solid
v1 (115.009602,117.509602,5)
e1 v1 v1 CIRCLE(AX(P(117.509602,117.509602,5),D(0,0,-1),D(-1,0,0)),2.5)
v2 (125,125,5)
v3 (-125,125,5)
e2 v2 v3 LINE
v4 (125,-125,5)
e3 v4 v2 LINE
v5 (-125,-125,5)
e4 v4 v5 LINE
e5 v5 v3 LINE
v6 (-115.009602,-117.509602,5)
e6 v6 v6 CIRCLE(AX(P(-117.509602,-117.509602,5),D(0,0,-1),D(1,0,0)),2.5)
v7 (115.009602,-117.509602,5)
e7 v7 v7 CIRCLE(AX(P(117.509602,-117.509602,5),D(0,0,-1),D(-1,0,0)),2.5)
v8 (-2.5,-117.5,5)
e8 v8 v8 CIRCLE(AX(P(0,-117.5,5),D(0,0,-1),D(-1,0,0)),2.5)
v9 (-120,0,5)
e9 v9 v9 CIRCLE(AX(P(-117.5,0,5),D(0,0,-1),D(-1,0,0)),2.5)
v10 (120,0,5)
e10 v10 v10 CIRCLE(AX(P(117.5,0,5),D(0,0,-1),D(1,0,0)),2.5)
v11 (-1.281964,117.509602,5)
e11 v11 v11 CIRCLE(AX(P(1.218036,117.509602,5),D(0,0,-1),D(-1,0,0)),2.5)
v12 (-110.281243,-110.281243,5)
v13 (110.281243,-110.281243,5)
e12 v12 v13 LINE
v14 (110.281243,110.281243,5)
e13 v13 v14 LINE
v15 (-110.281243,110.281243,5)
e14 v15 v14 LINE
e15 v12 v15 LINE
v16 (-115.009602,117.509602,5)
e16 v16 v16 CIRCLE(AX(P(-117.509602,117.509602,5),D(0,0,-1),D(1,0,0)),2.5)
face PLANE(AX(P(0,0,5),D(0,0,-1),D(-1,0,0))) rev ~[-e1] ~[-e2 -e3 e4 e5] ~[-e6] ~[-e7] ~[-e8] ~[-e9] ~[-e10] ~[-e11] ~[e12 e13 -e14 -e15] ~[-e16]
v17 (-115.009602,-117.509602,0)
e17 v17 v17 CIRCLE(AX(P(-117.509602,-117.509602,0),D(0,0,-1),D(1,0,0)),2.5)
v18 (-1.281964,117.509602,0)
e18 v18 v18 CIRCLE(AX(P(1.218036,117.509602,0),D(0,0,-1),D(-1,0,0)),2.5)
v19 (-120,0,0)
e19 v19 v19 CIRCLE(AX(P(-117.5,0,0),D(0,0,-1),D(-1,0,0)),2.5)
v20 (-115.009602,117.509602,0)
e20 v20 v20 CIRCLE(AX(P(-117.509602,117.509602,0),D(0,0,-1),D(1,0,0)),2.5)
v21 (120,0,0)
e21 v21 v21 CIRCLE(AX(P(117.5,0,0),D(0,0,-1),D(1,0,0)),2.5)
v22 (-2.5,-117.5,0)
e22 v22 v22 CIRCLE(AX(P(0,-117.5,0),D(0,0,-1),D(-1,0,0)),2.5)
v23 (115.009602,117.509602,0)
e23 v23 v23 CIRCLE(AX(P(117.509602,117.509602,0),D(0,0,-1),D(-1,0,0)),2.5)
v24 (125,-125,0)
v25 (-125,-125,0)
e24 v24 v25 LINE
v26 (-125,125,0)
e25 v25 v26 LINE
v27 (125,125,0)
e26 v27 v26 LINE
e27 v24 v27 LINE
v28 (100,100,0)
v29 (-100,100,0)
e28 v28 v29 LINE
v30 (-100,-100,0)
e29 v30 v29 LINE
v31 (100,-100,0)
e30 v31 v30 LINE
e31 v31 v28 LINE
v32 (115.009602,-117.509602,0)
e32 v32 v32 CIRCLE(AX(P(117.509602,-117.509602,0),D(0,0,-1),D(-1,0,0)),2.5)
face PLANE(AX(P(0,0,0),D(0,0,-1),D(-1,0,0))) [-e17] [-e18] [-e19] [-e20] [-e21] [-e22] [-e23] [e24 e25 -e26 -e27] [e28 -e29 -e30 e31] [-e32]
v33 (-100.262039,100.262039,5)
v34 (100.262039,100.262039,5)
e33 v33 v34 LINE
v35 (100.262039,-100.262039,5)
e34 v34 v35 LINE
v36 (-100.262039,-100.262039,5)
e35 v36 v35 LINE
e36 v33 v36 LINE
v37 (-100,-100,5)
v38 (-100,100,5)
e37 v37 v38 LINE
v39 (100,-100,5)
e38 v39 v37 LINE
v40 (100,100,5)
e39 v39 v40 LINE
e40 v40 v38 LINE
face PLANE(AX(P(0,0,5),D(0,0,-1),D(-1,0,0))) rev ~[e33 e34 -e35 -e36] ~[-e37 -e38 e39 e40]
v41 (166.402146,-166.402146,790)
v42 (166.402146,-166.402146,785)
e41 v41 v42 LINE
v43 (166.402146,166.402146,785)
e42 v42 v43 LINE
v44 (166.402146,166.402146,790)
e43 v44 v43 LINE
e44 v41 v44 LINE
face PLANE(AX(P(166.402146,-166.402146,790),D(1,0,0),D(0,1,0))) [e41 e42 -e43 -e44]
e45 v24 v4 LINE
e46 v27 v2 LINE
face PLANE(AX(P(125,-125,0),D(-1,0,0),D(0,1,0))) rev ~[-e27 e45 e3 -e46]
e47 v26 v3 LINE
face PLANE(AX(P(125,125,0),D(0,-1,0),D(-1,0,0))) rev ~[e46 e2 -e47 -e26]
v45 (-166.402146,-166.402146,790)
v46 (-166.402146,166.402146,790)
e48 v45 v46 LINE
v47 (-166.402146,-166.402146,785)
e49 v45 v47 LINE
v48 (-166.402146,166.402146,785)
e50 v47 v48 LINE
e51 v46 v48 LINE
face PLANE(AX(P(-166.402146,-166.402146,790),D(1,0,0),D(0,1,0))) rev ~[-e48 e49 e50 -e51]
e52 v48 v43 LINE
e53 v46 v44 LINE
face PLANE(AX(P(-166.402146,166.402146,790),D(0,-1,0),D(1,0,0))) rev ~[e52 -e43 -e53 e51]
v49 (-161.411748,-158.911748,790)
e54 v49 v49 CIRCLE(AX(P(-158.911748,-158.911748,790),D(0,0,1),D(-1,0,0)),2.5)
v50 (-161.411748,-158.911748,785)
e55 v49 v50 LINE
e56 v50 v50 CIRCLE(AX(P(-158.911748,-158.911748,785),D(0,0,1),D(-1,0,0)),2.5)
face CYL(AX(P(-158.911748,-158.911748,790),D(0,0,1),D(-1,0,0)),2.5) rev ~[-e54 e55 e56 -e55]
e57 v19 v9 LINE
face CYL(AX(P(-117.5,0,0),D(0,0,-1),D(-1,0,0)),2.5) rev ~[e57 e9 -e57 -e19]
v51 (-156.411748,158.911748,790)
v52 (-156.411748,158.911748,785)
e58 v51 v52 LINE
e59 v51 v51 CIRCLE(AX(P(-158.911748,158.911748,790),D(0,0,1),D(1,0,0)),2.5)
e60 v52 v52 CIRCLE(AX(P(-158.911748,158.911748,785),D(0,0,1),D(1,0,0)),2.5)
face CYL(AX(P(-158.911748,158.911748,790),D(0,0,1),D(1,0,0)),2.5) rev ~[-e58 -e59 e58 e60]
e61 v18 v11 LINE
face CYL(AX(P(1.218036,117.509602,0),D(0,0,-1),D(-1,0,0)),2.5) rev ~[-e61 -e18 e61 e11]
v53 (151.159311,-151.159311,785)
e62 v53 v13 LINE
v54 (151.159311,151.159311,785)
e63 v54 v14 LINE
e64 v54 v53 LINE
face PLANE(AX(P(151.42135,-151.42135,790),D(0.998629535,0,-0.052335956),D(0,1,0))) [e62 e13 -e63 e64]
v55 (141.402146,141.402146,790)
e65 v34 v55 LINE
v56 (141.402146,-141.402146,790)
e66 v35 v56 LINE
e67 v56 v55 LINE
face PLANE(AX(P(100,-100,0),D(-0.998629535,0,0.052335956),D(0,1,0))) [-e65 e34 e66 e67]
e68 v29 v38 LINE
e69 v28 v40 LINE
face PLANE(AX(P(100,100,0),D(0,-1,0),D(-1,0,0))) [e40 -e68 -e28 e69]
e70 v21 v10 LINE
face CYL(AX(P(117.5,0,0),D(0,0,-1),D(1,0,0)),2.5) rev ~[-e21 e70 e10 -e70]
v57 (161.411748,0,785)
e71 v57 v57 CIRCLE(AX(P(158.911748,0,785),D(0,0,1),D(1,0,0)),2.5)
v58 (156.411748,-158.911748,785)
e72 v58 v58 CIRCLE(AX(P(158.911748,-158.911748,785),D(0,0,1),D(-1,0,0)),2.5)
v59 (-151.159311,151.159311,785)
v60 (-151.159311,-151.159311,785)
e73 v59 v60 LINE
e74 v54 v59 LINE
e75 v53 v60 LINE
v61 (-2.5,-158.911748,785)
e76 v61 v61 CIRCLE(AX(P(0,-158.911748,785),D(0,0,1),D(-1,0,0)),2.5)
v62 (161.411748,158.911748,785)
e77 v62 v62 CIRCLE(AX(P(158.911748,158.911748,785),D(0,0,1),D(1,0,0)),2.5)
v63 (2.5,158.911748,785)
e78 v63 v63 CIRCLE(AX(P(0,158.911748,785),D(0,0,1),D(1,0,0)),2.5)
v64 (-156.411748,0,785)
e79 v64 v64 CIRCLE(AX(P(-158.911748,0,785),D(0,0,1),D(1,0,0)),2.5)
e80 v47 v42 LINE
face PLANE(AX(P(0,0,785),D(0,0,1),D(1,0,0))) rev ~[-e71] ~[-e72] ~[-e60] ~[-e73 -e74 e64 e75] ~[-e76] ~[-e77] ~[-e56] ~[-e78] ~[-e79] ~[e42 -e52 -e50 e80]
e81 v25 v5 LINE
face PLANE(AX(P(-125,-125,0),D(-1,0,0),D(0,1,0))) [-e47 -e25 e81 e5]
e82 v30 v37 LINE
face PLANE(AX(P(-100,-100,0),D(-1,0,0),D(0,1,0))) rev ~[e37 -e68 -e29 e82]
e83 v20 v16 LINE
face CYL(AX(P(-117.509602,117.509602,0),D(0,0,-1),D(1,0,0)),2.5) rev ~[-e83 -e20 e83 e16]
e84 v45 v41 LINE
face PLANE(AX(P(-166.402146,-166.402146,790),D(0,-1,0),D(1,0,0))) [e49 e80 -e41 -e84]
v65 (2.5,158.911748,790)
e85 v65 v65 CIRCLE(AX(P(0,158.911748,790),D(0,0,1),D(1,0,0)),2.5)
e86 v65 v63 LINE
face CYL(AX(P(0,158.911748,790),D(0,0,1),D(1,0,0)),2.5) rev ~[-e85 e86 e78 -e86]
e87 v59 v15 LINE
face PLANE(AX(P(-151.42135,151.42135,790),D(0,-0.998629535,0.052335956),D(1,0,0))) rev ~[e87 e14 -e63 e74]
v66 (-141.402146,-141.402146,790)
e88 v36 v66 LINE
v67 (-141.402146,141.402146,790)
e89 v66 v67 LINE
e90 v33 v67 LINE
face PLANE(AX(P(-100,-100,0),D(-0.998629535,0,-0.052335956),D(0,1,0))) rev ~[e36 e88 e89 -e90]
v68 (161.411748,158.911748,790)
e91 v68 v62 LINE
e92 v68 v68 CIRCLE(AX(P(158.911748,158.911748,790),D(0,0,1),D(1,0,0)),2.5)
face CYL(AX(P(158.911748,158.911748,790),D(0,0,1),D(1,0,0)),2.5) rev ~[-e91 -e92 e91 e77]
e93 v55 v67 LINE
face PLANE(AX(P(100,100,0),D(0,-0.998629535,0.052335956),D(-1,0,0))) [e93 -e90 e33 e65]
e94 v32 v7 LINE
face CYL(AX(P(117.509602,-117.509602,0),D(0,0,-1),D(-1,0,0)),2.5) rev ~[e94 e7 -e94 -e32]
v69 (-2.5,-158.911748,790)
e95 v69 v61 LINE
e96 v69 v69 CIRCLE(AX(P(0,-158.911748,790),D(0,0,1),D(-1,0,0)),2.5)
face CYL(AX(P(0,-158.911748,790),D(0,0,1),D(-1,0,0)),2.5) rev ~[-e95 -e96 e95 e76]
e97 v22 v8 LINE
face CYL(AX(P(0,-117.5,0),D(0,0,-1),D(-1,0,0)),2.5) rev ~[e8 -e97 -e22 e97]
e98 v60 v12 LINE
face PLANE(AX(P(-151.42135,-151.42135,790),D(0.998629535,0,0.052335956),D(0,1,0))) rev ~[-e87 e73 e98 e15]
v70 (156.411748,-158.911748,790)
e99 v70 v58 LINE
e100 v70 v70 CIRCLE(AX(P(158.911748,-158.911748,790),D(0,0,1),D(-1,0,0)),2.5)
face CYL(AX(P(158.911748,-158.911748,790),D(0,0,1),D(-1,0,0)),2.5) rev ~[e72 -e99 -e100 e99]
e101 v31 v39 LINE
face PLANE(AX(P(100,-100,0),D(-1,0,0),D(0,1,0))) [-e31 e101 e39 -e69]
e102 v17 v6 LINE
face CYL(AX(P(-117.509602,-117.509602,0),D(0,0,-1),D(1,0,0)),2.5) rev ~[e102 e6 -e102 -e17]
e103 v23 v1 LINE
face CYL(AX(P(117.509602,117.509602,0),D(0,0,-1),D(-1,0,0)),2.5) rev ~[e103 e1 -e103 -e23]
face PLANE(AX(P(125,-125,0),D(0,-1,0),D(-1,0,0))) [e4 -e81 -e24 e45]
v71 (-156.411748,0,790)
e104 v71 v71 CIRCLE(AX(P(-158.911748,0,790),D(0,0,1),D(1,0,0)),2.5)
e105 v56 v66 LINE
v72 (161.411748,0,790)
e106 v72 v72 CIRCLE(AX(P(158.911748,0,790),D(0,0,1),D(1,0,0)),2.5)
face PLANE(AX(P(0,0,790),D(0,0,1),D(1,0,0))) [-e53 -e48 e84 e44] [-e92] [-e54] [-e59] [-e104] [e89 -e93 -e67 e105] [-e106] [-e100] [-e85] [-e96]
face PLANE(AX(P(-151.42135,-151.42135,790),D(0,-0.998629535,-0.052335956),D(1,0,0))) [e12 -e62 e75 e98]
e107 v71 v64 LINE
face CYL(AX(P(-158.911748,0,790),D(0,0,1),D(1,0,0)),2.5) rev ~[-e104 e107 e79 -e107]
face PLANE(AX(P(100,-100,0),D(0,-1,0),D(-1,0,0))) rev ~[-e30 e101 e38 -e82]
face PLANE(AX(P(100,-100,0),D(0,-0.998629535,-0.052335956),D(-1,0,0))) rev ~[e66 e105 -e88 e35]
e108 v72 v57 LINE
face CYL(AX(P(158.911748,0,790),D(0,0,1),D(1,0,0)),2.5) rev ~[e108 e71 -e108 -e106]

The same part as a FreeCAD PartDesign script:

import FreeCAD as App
import Part
import Sketcher
from FreeCAD import Vector


def faces_at(feature, points):
    """Names of the faces that lie closest to the given points."""
    faces = feature.Shape.Faces
    near = lambda p: min(range(len(faces)), key=lambda i: faces[i].distToShape(Part.Vertex(*p))[0])
    return sorted({f"Face{near(p) + 1}" for p in points})

doc = App.newDocument("Part")
body = doc.addObject("PartDesign::Body", "Body")

sketch1 = body.newObject("Sketcher::SketchObject", "Sketch")
sketch1.AttachmentSupport = (doc.getObject("XY_Plane"), [""])
sketch1.MapMode = "FlatFace"
sketch1.AttachmentOffset = App.Placement(Vector(0, 0, 790), App.Rotation())
sketch1.addGeometry([
    Part.LineSegment(Vector(-151.42135, 151.42135, 0), Vector(-151.42135, -151.42135, 0)),
    Part.LineSegment(Vector(-151.42135, -151.42135, 0), Vector(151.42135, -151.42135, 0)),
    Part.LineSegment(Vector(151.42135, -151.42135, 0), Vector(151.42135, 151.42135, 0)),
    Part.LineSegment(Vector(151.42135, 151.42135, 0), Vector(-151.42135, 151.42135, 0)),
], False)
sketch1.addConstraint([
    Sketcher.Constraint("Coincident", 0, 2, 1, 1),
    Sketcher.Constraint("Coincident", 1, 2, 2, 1),
    Sketcher.Constraint("Coincident", 2, 2, 3, 1),
    Sketcher.Constraint("Coincident", 3, 2, 0, 1),
    Sketcher.Constraint("Vertical", 0),
    Sketcher.Constraint("Horizontal", 1),
    Sketcher.Constraint("Vertical", 2),
    Sketcher.Constraint("Horizontal", 3),
    Sketcher.Constraint("Symmetric", 0, 2, 2, 2, -1, 1),
    Sketcher.Constraint("Equal", 3, 0),
    Sketcher.Constraint("DistanceX", 1, 1, 1, 2, 302.8427),
])
pad1 = body.newObject("PartDesign::Pad", "Pad")
pad1.Profile = sketch1
pad1.Length = 790
pad1.Reversed = True
doc.recompute()

datumplane = body.newObject("PartDesign::Plane", "DatumPlane")
datumplane.AttachmentSupport = (doc.getObject("XY_Plane"), [""])
datumplane.MapMode = "FlatFace"
datumplane.AttachmentOffset = App.Placement(Vector(0, 0, 790), App.Rotation())
draft = body.newObject("PartDesign::Draft", "Draft")
draft.Base = (pad1, faces_at(pad1, [
    (0, 151.421, 395),
    (-151.421, 0, 395),
    (0, -151.421, 395),
    (151.421, 0, 395),
]))
draft.NeutralPlane = (datumplane, [""])
draft.Angle = 3
draft.Reversed = True
body2 = doc.addObject("PartDesign::Body", "Body001")

sketch2 = body2.newObject("Sketcher::SketchObject", "Sketch001")
sketch2.AttachmentSupport = (doc.getObject("XY_Plane001"), [""])
sketch2.MapMode = "FlatFace"
sketch2.addGeometry([
    Part.LineSegment(Vector(100, 100, 0), Vector(100, -100, 0)),
    Part.LineSegment(Vector(100, -100, 0), Vector(-100, -100, 0)),
    Part.LineSegment(Vector(-100, -100, 0), Vector(-100, 100, 0)),
    Part.LineSegment(Vector(-100, 100, 0), Vector(100, 100, 0)),
], False)
sketch2.addConstraint([
    Sketcher.Constraint("Coincident", 0, 2, 1, 1),
    Sketcher.Constraint("Coincident", 1, 2, 2, 1),
    Sketcher.Constraint("Coincident", 2, 2, 3, 1),
    Sketcher.Constraint("Coincident", 3, 2, 0, 1),
    Sketcher.Constraint("Vertical", 0),
    Sketcher.Constraint("Horizontal", 1),
    Sketcher.Constraint("Vertical", 2),
    Sketcher.Constraint("Horizontal", 3),
    Sketcher.Constraint("Symmetric", 0, 2, 2, 2, -1, 1),
    Sketcher.Constraint("Equal", 3, 0),
    Sketcher.Constraint("DistanceX", 1, 2, 1, 1, 200.0),
])
pad2 = body2.newObject("PartDesign::Pad", "Pad001")
pad2.Profile = sketch2
pad2.Length = 790
doc.recompute()

draft2 = body2.newObject("PartDesign::Draft", "Draft001")
draft2.Base = (pad2, faces_at(pad2, [
    (0, -100, 395),
    (-100, 0, 395),
    (0, 100, 395),
    (100, 0, 395),
]))
draft2.NeutralPlane = (doc.getObject("XY_Plane001"), [""])
draft2.Angle = 3
draft2.Reversed = True
doc.recompute()

boolean = body.newObject("PartDesign::Boolean", "Boolean")
boolean.Type = "Cut"
boolean.addObjects([body2])

sketch3 = body.newObject("Sketcher::SketchObject", "Sketch002")
sketch3.AttachmentSupport = (doc.getObject("XY_Plane"), [""])
sketch3.MapMode = "FlatFace"
sketch3.addGeometry([
    Part.LineSegment(Vector(125, 125, 0), Vector(125, -125, 0)),
    Part.LineSegment(Vector(125, -125, 0), Vector(-125, -125, 0)),
    Part.LineSegment(Vector(-125, -125, 0), Vector(-125, 125, 0)),
    Part.LineSegment(Vector(-125, 125, 0), Vector(125, 125, 0)),
    Part.Circle(Vector(117.509602, -117.509602, 0), Vector(0, 0, 1), 2.5),
    Part.Circle(Vector(0, -117.5, 0), Vector(0, 0, 1), 2.5),
    Part.Circle(Vector(117.5, 0, 0), Vector(0, 0, 1), 2.5),
    Part.LineSegment(Vector(-100, -100, 0), Vector(100, -100, 0)),
    Part.LineSegment(Vector(100, -100, 0), Vector(100, 100, 0)),
    Part.LineSegment(Vector(100, 100, 0), Vector(-100, 100, 0)),
    Part.LineSegment(Vector(-100, 100, 0), Vector(-100, -100, 0)),
    Part.Circle(Vector(-117.509602, -117.509602, 0), Vector(0, 0, 1), 2.5),
    Part.Circle(Vector(-117.5, 0, 0), Vector(0, 0, 1), 2.5),
    Part.Circle(Vector(117.509602, 117.509602, 0), Vector(0, 0, 1), 2.5),
    Part.Circle(Vector(1.218036, 117.509602, 0), Vector(0, 0, 1), 2.5),
    Part.Circle(Vector(-117.509602, 117.509602, 0), Vector(0, 0, 1), 2.5),
], False)
sketch3.addConstraint([
    Sketcher.Constraint("Coincident", 0, 2, 1, 1),
    Sketcher.Constraint("Coincident", 1, 2, 2, 1),
    Sketcher.Constraint("Coincident", 2, 2, 3, 1),
    Sketcher.Constraint("Coincident", 3, 2, 0, 1),
    Sketcher.Constraint("Coincident", 7, 2, 8, 1),
    Sketcher.Constraint("Coincident", 8, 2, 9, 1),
    Sketcher.Constraint("Coincident", 9, 2, 10, 1),
    Sketcher.Constraint("Coincident", 10, 2, 7, 1),
    Sketcher.Constraint("Vertical", 0),
    Sketcher.Constraint("Horizontal", 1),
    Sketcher.Constraint("Vertical", 2),
    Sketcher.Constraint("Horizontal", 3),
    Sketcher.Constraint("Horizontal", 7),
    Sketcher.Constraint("Vertical", 8),
    Sketcher.Constraint("Horizontal", 9),
    Sketcher.Constraint("Vertical", 10),
    Sketcher.Constraint("Equal", 4, 5),
    Sketcher.Constraint("Equal", 5, 6),
    Sketcher.Constraint("Equal", 6, 11),
    Sketcher.Constraint("Equal", 11, 12),
    Sketcher.Constraint("Equal", 12, 13),
    Sketcher.Constraint("Equal", 13, 14),
    Sketcher.Constraint("Equal", 14, 15),
    Sketcher.Constraint("Symmetric", 6, 3, 12, 3, -1, 1),
    Sketcher.Constraint("Symmetric", 11, 3, 13, 3, -1, 1),
    Sketcher.Constraint("Symmetric", 4, 3, 15, 3, -1, 1),
    Sketcher.Constraint("Symmetric", 0, 2, 2, 2, -1, 1),
    Sketcher.Constraint("Symmetric", 7, 2, 9, 2, -1, 1),
    Sketcher.Constraint("Symmetric", 4, 3, 11, 3, -2),
    Sketcher.Constraint("PointOnObject", 5, 3, -2),
    Sketcher.Constraint("PointOnObject", 6, 3, -1),
    Sketcher.Constraint("Horizontal", 13, 3, 14, 3),
    Sketcher.Constraint("Equal", 3, 0),
    Sketcher.Constraint("Equal", 9, 8),
    Sketcher.Constraint("Diameter", 4, 5.0),
    Sketcher.Constraint("DistanceX", 1, 2, 1, 1, 250.0),
    Sketcher.Constraint("DistanceX", 7, 1, 7, 2, 200.0),
    Sketcher.Constraint("DistanceX", 12, 3, 6, 3, 235.0),
    Sketcher.Constraint("DistanceY", 5, 3, -1, 1, 117.5),
    Sketcher.Constraint("DistanceX", 15, 3, 14, 3, 118.727639),
    Sketcher.Constraint("DistanceX", -1, 1, 4, 3, 117.509602),
    Sketcher.Constraint("DistanceY", 4, 3, -1, 1, 117.509602),
])
pad3 = body.newObject("PartDesign::Pad", "Pad002")
pad3.Profile = sketch3
pad3.Length = 5

sketch4 = body.newObject("Sketcher::SketchObject", "Sketch003")
sketch4.AttachmentSupport = (doc.getObject("XY_Plane"), [""])
sketch4.MapMode = "FlatFace"
sketch4.AttachmentOffset = App.Placement(Vector(0, 0, 790), App.Rotation())
sketch4.addGeometry([
    Part.LineSegment(Vector(-166.402146, 166.402146, 0), Vector(-166.402146, -166.402146, 0)),
    Part.LineSegment(Vector(-166.402146, -166.402146, 0), Vector(166.402146, -166.402146, 0)),
    Part.LineSegment(Vector(166.402146, -166.402146, 0), Vector(166.402146, 166.402146, 0)),
    Part.LineSegment(Vector(166.402146, 166.402146, 0), Vector(-166.402146, 166.402146, 0)),
    Part.Circle(Vector(-158.911748, -158.911748, 0), Vector(0, 0, 1), 2.5),
    Part.Circle(Vector(0, -158.911748, 0), Vector(0, 0, 1), 2.5),
    Part.Circle(Vector(158.911748, -158.911748, 0), Vector(0, 0, 1), 2.5),
    Part.Circle(Vector(-158.911748, 0, 0), Vector(0, 0, 1), 2.5),
    Part.Circle(Vector(-158.911748, 158.911748, 0), Vector(0, 0, 1), 2.5),
    Part.LineSegment(Vector(141.402146, -141.402146, 0), Vector(-141.402146, -141.402146, 0)),
    Part.LineSegment(Vector(-141.402146, -141.402146, 0), Vector(-141.402146, 141.402146, 0)),
    Part.LineSegment(Vector(-141.402146, 141.402146, 0), Vector(141.402146, 141.402146, 0)),
    Part.LineSegment(Vector(141.402146, 141.402146, 0), Vector(141.402146, -141.402146, 0)),
    Part.Circle(Vector(158.911748, 0, 0), Vector(0, 0, 1), 2.5),
    Part.Circle(Vector(0, 158.911748, 0), Vector(0, 0, 1), 2.5),
    Part.Circle(Vector(158.911748, 158.911748, 0), Vector(0, 0, 1), 2.5),
], False)
sketch4.addConstraint([
    Sketcher.Constraint("Coincident", 0, 2, 1, 1),
    Sketcher.Constraint("Coincident", 1, 2, 2, 1),
    Sketcher.Constraint("Coincident", 2, 2, 3, 1),
    Sketcher.Constraint("Coincident", 3, 2, 0, 1),
    Sketcher.Constraint("Coincident", 9, 2, 10, 1),
    Sketcher.Constraint("Coincident", 10, 2, 11, 1),
    Sketcher.Constraint("Coincident", 11, 2, 12, 1),
    Sketcher.Constraint("Coincident", 12, 2, 9, 1),
    Sketcher.Constraint("Vertical", 0),
    Sketcher.Constraint("Horizontal", 1),
    Sketcher.Constraint("Vertical", 2),
    Sketcher.Constraint("Horizontal", 3),
    Sketcher.Constraint("Horizontal", 9),
    Sketcher.Constraint("Vertical", 10),
    Sketcher.Constraint("Horizontal", 11),
    Sketcher.Constraint("Vertical", 12),
    Sketcher.Constraint("Equal", 4, 5),
    Sketcher.Constraint("Equal", 5, 6),
    Sketcher.Constraint("Equal", 6, 7),
    Sketcher.Constraint("Equal", 7, 8),
    Sketcher.Constraint("Equal", 8, 13),
    Sketcher.Constraint("Equal", 13, 14),
    Sketcher.Constraint("Equal", 14, 15),
    Sketcher.Constraint("Symmetric", 6, 3, 8, 3, -1, 1),
    Sketcher.Constraint("Symmetric", 7, 3, 13, 3, -1, 1),
    Sketcher.Constraint("Symmetric", 5, 3, 14, 3, -1, 1),
    Sketcher.Constraint("Symmetric", 4, 3, 15, 3, -1, 1),
    Sketcher.Constraint("Symmetric", 0, 2, 2, 2, -1, 1),
    Sketcher.Constraint("Symmetric", 9, 2, 11, 2, -1, 1),
    Sketcher.Constraint("Symmetric", 4, 3, 6, 3, -2),
    Sketcher.Constraint("PointOnObject", 5, 3, -2),
    Sketcher.Constraint("PointOnObject", 7, 3, -1),
    Sketcher.Constraint("Horizontal", 4, 3, 5, 3),
    Sketcher.Constraint("Vertical", 4, 3, 7, 3),
    Sketcher.Constraint("Equal", 3, 0),
    Sketcher.Constraint("Equal", 11, 10),
    Sketcher.Constraint("Diameter", 4, 5.0),
    Sketcher.Constraint("DistanceX", 0, 2, 9, 2, 25.0),
    Sketcher.Constraint("DistanceX", 1, 1, 1, 2, 332.804291),
    Sketcher.Constraint("DistanceX", 4, 3, -1, 1, 158.911748),
    Sketcher.Constraint("DistanceY", 4, 3, -1, 1, 158.911748),
])
pad4 = body.newObject("PartDesign::Pad", "Pad003")
pad4.Profile = sketch4
pad4.Length = 5
pad4.Reversed = True

doc.recompute()
